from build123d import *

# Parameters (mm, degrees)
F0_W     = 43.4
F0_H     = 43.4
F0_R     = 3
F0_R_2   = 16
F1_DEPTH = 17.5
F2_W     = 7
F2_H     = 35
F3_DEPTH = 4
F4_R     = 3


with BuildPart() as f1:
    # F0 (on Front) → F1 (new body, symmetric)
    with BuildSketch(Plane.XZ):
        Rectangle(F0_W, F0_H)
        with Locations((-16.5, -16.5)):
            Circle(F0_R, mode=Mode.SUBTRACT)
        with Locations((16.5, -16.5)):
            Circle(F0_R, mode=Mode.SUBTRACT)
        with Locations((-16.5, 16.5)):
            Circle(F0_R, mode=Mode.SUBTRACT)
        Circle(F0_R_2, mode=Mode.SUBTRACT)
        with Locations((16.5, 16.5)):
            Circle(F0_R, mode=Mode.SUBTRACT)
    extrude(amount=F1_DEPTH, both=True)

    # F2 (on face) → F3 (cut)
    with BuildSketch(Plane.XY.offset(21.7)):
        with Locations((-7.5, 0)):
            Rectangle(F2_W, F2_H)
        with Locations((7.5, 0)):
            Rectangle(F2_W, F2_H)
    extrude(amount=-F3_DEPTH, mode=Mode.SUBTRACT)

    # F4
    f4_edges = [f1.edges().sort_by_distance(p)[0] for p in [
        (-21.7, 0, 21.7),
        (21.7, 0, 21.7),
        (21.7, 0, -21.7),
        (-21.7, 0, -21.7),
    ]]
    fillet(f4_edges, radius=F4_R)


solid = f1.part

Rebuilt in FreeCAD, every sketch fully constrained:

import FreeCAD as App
import Part
import Sketcher
from FreeCAD import Vector


def edges_at(feature, points):
    """Names of the edges that pass closest to the given points."""
    edges = feature.Shape.Edges
    near = lambda p: min(range(len(edges)), key=lambda i: edges[i].distToShape(Part.Vertex(*p))[0])
    return sorted({f"Edge{near(p) + 1}" for p in points})

doc = App.newDocument("Part")
body = doc.addObject("PartDesign::Body", "Body")

sketch1 = body.newObject("Sketcher::SketchObject", "Sketch")
sketch1.AttachmentSupport = (doc.getObject("XZ_Plane"), [""])
sketch1.MapMode = "FlatFace"
sketch1.addGeometry(Part.LineSegment(Vector(-21.7, 21.7, 0), Vector(-21.7, -21.7, 0)), False)
sketch1.addGeometry(Part.LineSegment(Vector(-21.7, -21.7, 0), Vector(21.7, -21.7, 0)), False)
sketch1.addGeometry(Part.LineSegment(Vector(21.7, -21.7, 0), Vector(21.7, 21.7, 0)), False)
sketch1.addGeometry(Part.LineSegment(Vector(21.7, 21.7, 0), Vector(-21.7, 21.7, 0)), False)
sketch1.addGeometry(Part.Circle(Vector(-16.5, -16.5, 0), Vector(0, 0, 1), 3), False)
sketch1.addGeometry(Part.Circle(Vector(16.5, -16.5, 0), Vector(0, 0, 1), 3), False)
sketch1.addGeometry(Part.Circle(Vector(-16.5, 16.5, 0), Vector(0, 0, 1), 3), False)
sketch1.addGeometry(Part.Circle(Vector(0, 0, 0), Vector(0, 0, 1), 16), False)
sketch1.addGeometry(Part.Circle(Vector(16.5, 16.5, 0), Vector(0, 0, 1), 3), False)
sketch1.addConstraint(Sketcher.Constraint("Coincident", 0, 2, 1, 1))
sketch1.addConstraint(Sketcher.Constraint("Coincident", 1, 2, 2, 1))
sketch1.addConstraint(Sketcher.Constraint("Coincident", 2, 2, 3, 1))
sketch1.addConstraint(Sketcher.Constraint("Coincident", 3, 2, 0, 1))
sketch1.addConstraint(Sketcher.Constraint("Vertical", 0))
sketch1.addConstraint(Sketcher.Constraint("Horizontal", 1))
sketch1.addConstraint(Sketcher.Constraint("Vertical", 2))
sketch1.addConstraint(Sketcher.Constraint("Horizontal", 3))
sketch1.addConstraint(Sketcher.Constraint("Coincident", 7, 3, -1, 1))
sketch1.addConstraint(Sketcher.Constraint("Equal", 4, 5))
sketch1.addConstraint(Sketcher.Constraint("Equal", 5, 6))
sketch1.addConstraint(Sketcher.Constraint("Equal", 6, 8))
sketch1.addConstraint(Sketcher.Constraint("Symmetric", 5, 3, 6, 3, -1, 1))
sketch1.addConstraint(Sketcher.Constraint("Symmetric", 4, 3, 8, 3, -1, 1))
sketch1.addConstraint(Sketcher.Constraint("Symmetric", 0, 2, 2, 2, -1, 1))
sketch1.addConstraint(Sketcher.Constraint("Symmetric", 4, 3, 5, 3, -2))
sketch1.addConstraint(Sketcher.Constraint("Equal", 3, 0))
sketch1.addConstraint(Sketcher.Constraint("Diameter", 4, 6.0))
sketch1.addConstraint(Sketcher.Constraint("Diameter", 7, 32.0))
sketch1.addConstraint(Sketcher.Constraint("DistanceX", 1, 1, 1, 2, 43.4))
sketch1.addConstraint(Sketcher.Constraint("DistanceX", 4, 3, 5, 3, 33.0))
sketch1.addConstraint(Sketcher.Constraint("DistanceY", 4, 3, 6, 3, 33.0))
pad1 = body.newObject("PartDesign::Pad", "Pad")
pad1.Profile = sketch1
pad1.Length = 35
pad1.Midplane = True

sketch2 = body.newObject("Sketcher::SketchObject", "Sketch001")
sketch2.AttachmentSupport = (doc.getObject("XY_Plane"), [""])
sketch2.MapMode = "FlatFace"
sketch2.AttachmentOffset = App.Placement(Vector(0, 0, 21.7), App.Rotation())
sketch2.addGeometry(Part.LineSegment(Vector(-11, 18, 0), Vector(-11, -18, 0)), False)
sketch2.addGeometry(Part.LineSegment(Vector(-11, -18, 0), Vector(-4, -18, 0)), False)
sketch2.addGeometry(Part.LineSegment(Vector(-4, -18, 0), Vector(-4, 18, 0)), False)
sketch2.addGeometry(Part.LineSegment(Vector(-4, 18, 0), Vector(-11, 18, 0)), False)
sketch2.addGeometry(Part.LineSegment(Vector(4, 18, 0), Vector(4, -18, 0)), False)
sketch2.addGeometry(Part.LineSegment(Vector(4, -18, 0), Vector(11, -18, 0)), False)
sketch2.addGeometry(Part.LineSegment(Vector(11, -18, 0), Vector(11, 18, 0)), False)
sketch2.addGeometry(Part.LineSegment(Vector(11, 18, 0), Vector(4, 18, 0)), False)
sketch2.addConstraint(Sketcher.Constraint("Coincident", 0, 2, 1, 1))
sketch2.addConstraint(Sketcher.Constraint("Coincident", 1, 2, 2, 1))
sketch2.addConstraint(Sketcher.Constraint("Coincident", 2, 2, 3, 1))
sketch2.addConstraint(Sketcher.Constraint("Coincident", 3, 2, 0, 1))
sketch2.addConstraint(Sketcher.Constraint("Coincident", 4, 2, 5, 1))
sketch2.addConstraint(Sketcher.Constraint("Coincident", 5, 2, 6, 1))
sketch2.addConstraint(Sketcher.Constraint("Coincident", 6, 2, 7, 1))
sketch2.addConstraint(Sketcher.Constraint("Coincident", 7, 2, 4, 1))
sketch2.addConstraint(Sketcher.Constraint("Vertical", 0))
sketch2.addConstraint(Sketcher.Constraint("Horizontal", 1))
sketch2.addConstraint(Sketcher.Constraint("Vertical", 2))
sketch2.addConstraint(Sketcher.Constraint("Horizontal", 3))
sketch2.addConstraint(Sketcher.Constraint("Vertical", 4))
sketch2.addConstraint(Sketcher.Constraint("Horizontal", 5))
sketch2.addConstraint(Sketcher.Constraint("Vertical", 6))
sketch2.addConstraint(Sketcher.Constraint("Horizontal", 7))
sketch2.addConstraint(Sketcher.Constraint("Symmetric", 2, 2, 4, 2, -1, 1))
sketch2.addConstraint(Sketcher.Constraint("Symmetric", 0, 2, 6, 2, -1, 1))
sketch2.addConstraint(Sketcher.Constraint("Horizontal", 1, 2, 4, 2))
sketch2.addConstraint(Sketcher.Constraint("DistanceX", 1, 1, 1, 2, 7.0))
sketch2.addConstraint(Sketcher.Constraint("DistanceY", 0, 2, 0, 1, 35.0))
sketch2.addConstraint(Sketcher.Constraint("DistanceX", 0, 2, -1, 1, 11.0))
pocket1 = body.newObject("PartDesign::Pocket", "Pocket")
pocket1.Profile = sketch2
pocket1.Length = 4
doc.recompute()

fillet = body.newObject("PartDesign::Fillet", "Fillet")
fillet.Base = (pocket1, edges_at(pocket1, [
    (-21.7, 0, 21.7),
    (21.7, 0, 21.7),
    (21.7, 0, -21.7),
    (-21.7, 0, -21.7),
]))
fillet.Radius = 3

doc.recompute()
